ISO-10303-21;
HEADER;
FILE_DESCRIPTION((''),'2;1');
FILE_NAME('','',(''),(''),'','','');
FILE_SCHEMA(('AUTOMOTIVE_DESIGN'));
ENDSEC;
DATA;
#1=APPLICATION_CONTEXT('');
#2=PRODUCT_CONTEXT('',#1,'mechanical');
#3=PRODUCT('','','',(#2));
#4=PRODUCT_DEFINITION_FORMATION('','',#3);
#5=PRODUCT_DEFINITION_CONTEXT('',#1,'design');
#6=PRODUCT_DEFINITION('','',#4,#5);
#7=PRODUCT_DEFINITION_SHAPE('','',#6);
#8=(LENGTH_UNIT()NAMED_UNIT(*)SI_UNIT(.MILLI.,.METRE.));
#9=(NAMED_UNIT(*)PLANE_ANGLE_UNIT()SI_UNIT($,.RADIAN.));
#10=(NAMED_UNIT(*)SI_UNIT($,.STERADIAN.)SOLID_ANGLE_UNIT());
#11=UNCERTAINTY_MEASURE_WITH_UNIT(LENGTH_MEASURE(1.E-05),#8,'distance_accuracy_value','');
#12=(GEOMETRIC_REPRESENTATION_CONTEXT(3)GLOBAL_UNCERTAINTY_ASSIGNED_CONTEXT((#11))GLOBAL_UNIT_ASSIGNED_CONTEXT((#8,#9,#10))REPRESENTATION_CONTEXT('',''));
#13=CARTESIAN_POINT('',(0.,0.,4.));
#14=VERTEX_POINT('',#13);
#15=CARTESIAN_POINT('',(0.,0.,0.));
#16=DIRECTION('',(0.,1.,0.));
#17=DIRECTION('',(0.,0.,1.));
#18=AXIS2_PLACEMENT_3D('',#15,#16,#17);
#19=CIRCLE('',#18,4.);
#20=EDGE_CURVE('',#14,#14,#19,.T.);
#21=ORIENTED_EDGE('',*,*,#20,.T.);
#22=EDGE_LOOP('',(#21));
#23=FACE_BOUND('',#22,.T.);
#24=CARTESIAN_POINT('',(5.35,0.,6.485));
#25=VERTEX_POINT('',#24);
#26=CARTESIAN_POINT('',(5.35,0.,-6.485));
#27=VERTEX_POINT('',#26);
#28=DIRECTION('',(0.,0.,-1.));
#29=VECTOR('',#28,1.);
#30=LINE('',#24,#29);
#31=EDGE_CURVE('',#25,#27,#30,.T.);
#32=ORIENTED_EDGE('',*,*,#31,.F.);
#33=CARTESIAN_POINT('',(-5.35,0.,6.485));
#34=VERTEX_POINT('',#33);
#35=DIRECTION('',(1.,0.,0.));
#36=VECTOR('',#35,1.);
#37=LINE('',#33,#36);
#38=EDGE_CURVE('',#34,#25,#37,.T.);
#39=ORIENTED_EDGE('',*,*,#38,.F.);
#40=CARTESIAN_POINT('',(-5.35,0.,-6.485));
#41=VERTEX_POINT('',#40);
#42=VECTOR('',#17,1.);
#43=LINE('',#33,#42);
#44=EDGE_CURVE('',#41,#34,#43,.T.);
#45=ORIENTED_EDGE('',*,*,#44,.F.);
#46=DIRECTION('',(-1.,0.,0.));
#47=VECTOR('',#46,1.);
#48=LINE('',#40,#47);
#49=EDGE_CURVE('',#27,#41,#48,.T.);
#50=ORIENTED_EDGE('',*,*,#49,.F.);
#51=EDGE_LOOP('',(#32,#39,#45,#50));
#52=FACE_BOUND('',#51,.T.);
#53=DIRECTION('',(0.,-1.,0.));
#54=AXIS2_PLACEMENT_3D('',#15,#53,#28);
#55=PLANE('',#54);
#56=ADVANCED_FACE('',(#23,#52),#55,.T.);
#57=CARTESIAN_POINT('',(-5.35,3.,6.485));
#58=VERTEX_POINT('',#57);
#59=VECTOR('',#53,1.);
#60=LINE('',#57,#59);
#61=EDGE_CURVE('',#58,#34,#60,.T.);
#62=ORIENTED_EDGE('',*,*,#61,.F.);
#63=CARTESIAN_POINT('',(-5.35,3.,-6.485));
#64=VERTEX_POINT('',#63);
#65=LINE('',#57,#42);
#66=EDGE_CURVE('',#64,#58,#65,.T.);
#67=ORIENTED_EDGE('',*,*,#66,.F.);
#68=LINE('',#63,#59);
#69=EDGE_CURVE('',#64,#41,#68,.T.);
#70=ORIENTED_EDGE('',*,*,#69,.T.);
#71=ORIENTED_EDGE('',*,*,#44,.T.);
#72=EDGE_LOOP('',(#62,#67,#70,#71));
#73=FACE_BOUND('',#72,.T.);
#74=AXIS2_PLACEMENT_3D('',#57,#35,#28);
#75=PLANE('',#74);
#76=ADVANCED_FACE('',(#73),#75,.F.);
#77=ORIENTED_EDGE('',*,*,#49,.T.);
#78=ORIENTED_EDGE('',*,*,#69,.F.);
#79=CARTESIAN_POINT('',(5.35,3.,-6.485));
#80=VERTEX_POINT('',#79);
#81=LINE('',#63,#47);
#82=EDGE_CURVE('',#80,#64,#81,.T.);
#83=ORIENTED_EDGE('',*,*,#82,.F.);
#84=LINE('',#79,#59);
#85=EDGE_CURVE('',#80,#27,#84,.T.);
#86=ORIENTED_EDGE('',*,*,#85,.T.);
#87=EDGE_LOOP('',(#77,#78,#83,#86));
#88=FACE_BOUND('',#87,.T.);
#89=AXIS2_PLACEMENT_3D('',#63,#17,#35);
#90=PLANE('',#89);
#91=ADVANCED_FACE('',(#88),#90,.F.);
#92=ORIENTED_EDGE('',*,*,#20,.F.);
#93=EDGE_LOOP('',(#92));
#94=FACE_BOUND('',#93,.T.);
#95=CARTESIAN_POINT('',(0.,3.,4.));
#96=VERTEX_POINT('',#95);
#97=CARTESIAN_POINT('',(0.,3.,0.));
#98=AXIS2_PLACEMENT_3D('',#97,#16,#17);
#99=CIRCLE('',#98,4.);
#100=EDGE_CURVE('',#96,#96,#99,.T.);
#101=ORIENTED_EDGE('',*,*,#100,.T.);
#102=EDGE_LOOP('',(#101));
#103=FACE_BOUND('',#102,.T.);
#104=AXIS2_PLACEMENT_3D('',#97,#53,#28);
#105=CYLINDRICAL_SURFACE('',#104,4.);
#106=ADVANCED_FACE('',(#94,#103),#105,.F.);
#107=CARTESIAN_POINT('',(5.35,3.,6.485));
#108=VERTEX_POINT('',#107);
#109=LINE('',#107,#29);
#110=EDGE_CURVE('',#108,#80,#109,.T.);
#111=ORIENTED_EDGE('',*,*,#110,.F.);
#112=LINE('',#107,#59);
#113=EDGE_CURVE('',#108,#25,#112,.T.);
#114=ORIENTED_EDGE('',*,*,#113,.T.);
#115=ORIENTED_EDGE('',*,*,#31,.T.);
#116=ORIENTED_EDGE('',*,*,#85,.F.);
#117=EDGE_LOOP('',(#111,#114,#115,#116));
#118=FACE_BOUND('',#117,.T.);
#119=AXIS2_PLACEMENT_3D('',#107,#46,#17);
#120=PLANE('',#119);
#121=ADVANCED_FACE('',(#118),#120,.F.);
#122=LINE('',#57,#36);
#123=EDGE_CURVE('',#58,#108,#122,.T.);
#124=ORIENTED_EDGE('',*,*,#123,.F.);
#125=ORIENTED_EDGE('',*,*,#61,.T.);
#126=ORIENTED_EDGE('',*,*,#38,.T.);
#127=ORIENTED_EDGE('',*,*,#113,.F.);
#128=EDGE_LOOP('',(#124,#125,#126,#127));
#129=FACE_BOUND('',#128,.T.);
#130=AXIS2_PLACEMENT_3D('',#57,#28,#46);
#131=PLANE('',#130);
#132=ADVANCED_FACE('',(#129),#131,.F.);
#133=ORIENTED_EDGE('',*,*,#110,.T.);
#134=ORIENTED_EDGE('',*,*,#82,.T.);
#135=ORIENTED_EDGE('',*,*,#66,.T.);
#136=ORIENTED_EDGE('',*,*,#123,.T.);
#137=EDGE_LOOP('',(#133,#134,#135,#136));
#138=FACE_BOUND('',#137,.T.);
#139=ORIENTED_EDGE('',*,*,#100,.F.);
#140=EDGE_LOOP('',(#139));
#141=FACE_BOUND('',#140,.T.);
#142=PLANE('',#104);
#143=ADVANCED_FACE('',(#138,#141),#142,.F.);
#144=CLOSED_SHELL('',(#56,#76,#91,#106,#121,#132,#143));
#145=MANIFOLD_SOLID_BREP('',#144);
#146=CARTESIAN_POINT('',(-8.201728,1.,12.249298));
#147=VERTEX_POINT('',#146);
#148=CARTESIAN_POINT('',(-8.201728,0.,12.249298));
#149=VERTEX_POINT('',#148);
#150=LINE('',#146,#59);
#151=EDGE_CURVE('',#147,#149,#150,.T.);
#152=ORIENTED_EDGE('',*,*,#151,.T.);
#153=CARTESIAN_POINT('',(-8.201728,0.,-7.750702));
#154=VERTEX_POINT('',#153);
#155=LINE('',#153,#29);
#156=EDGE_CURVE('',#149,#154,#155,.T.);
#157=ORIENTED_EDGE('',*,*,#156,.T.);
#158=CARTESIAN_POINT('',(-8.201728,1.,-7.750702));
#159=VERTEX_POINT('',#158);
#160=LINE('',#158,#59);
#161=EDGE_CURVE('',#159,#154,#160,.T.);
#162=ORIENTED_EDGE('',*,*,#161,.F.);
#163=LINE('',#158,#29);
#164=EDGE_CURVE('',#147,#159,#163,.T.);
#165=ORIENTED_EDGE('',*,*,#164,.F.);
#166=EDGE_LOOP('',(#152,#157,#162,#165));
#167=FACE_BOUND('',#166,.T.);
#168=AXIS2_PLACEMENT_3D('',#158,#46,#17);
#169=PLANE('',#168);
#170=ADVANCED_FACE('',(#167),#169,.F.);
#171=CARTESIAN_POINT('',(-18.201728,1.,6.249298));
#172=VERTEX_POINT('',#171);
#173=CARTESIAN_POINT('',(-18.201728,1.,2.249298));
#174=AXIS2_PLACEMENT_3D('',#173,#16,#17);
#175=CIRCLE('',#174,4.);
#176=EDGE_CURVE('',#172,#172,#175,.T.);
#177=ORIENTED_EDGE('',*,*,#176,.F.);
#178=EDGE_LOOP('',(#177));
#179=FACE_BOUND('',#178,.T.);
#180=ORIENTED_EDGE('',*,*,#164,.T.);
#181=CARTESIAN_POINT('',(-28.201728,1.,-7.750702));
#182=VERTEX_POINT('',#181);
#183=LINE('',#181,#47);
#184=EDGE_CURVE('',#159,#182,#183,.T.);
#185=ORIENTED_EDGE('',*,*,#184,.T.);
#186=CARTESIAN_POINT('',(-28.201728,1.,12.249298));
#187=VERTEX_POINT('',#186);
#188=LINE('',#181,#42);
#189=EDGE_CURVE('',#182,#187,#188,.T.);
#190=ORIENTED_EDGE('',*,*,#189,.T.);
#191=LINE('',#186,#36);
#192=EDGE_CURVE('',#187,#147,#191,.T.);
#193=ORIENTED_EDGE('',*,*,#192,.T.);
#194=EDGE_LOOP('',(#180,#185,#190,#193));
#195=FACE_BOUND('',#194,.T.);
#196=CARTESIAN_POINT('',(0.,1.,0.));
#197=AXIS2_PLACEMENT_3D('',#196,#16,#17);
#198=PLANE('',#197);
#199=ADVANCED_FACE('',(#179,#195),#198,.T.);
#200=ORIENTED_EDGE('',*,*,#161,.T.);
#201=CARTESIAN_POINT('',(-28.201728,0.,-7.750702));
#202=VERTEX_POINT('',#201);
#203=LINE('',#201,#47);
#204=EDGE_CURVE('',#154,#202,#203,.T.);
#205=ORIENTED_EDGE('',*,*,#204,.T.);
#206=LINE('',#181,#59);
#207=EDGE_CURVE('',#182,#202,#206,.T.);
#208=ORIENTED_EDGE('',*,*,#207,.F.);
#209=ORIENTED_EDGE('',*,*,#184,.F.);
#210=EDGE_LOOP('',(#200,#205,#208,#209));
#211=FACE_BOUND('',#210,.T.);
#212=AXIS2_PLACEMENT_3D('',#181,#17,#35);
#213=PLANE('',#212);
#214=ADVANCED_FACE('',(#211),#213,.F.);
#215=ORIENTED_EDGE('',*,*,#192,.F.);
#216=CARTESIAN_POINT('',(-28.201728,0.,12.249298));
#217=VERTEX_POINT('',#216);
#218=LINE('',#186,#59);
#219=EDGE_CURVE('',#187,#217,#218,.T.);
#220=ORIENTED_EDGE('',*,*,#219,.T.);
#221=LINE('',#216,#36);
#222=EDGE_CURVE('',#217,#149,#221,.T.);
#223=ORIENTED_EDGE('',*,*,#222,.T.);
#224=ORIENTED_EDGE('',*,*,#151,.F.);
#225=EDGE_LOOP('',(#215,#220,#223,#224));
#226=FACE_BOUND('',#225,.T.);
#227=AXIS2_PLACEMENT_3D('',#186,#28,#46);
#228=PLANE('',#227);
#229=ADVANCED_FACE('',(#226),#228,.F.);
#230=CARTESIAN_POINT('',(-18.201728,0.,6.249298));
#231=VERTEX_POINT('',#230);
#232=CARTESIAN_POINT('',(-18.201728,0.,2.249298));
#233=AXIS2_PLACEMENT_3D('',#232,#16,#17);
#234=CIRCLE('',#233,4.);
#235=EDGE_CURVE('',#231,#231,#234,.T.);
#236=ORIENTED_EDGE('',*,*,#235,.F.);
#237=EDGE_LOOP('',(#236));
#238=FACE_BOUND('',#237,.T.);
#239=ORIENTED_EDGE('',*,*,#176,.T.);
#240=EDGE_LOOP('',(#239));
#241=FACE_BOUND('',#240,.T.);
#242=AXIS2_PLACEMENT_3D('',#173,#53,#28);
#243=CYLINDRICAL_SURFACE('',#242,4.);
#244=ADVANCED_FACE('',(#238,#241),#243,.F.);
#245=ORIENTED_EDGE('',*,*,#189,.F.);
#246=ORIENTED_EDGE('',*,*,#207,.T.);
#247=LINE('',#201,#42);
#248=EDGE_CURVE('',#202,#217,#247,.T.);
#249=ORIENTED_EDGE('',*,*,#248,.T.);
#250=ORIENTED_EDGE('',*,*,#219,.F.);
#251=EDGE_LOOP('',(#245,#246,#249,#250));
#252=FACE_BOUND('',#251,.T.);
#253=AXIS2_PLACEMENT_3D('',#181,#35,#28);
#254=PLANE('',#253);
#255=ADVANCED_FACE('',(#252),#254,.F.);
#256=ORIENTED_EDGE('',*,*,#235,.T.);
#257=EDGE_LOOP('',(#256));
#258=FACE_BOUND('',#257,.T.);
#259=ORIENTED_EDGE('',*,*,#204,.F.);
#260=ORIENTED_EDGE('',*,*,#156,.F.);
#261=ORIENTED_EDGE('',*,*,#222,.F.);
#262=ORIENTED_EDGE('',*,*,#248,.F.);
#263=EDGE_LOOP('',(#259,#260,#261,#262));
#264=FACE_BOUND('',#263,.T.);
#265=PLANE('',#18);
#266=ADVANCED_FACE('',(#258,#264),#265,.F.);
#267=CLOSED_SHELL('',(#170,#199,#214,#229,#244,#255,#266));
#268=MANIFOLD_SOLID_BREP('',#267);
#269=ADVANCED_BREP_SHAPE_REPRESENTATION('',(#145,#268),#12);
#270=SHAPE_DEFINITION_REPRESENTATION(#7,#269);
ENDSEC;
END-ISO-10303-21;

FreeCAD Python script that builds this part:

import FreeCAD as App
import Part
import Sketcher
from FreeCAD import Vector


def add_polygon(sketch, points):
    """Adds a closed chain of lines whose ends are joined by coincident constraints."""
    first, n = sketch.GeometryCount, len(points)
    for a, b in zip(points, points[1:] + points[:1]):
        sketch.addGeometry(Part.LineSegment(App.Vector(*a, 0), App.Vector(*b, 0)), False)
    for i in range(n):
        sketch.addConstraint(Sketcher.Constraint("Coincident", first + i, 2, first + (i + 1) % n, 1))

doc = App.newDocument("Part")
body = doc.addObject("PartDesign::Body", "Body")

sketch1 = doc.addObject("Sketcher::SketchObject", "Sketch")
body.addObject(sketch1)
sketch1.AttachmentSupport = (doc.XZ_Plane, [""])
sketch1.MapMode = "FlatFace"
add_polygon(sketch1, [(-5.3, -6.5), (-5.3, 6.5), (5.3, 6.5), (5.3, -6.5)])
sketch1.addGeometry(Part.Circle(Vector(0, 0, 0), Vector(0, 0, 1), 4), False)
sketch1.addConstraint(Sketcher.Constraint("Vertical", 0))
sketch1.addConstraint(Sketcher.Constraint("Horizontal", 1))
sketch1.addConstraint(Sketcher.Constraint("Vertical", 2))
sketch1.addConstraint(Sketcher.Constraint("Horizontal", 3))
sketch1.addConstraint(Sketcher.Constraint("Coincident", 4, 3, -1, 1))
sketch1.addConstraint(Sketcher.Constraint("Symmetric", 0, 2, 2, 2, -1, 1))
sketch1.addConstraint(Sketcher.Constraint("Diameter", 4, 8.0))
sketch1.addConstraint(Sketcher.Constraint("DistanceX", 1, 1, 1, 2, 10.7))
sketch1.addConstraint(Sketcher.Constraint("DistanceY", 0, 1, 0, 2, 12.97))
pad1 = doc.addObject("PartDesign::Pad", "Pad")
body.addObject(pad1)
pad1.Profile = sketch1
pad1.Length = 3
pad1.Reversed = True
body2 = doc.addObject("PartDesign::Body", "Body001")

sketch2 = doc.addObject("Sketcher::SketchObject", "Sketch001")
body2.addObject(sketch2)
sketch2.AttachmentSupport = (doc.getObject("XZ_Plane001"), [""])
sketch2.MapMode = "FlatFace"
add_polygon(sketch2, [(-28.2, -7.8), (-28.2, 12.2), (-8.2, 12.2), (-8.2, -7.8)])
sketch2.addGeometry(Part.Circle(Vector(-18.2, 2.2, 0), Vector(0, 0, 1), 4), False)
sketch2.addConstraint(Sketcher.Constraint("Vertical", 0))
sketch2.addConstraint(Sketcher.Constraint("Horizontal", 1))
sketch2.addConstraint(Sketcher.Constraint("Vertical", 2))
sketch2.addConstraint(Sketcher.Constraint("Horizontal", 3))
sketch2.addConstraint(Sketcher.Constraint("Equal", 3, 0))
sketch2.addConstraint(Sketcher.Constraint("Diameter", 4, 8.0))
sketch2.addConstraint(Sketcher.Constraint("DistanceX", 1, 1, 1, 2, 20.0))
sketch2.addConstraint(Sketcher.Constraint("DistanceX", 0, 2, 4, 3, 10.0))
sketch2.addConstraint(Sketcher.Constraint("DistanceY", 4, 3, 0, 2, 10.0))
sketch2.addConstraint(Sketcher.Constraint("DistanceY", -1, 1, 4, 3, 2.249298))
sketch2.addConstraint(Sketcher.Constraint("DistanceX", 4, 3, -1, 1, 18.201728))
pad2 = doc.addObject("PartDesign::Pad", "Pad001")
body2.addObject(pad2)
pad2.Profile = sketch2
pad2.Length = 1
pad2.Reversed = True

doc.recompute()
